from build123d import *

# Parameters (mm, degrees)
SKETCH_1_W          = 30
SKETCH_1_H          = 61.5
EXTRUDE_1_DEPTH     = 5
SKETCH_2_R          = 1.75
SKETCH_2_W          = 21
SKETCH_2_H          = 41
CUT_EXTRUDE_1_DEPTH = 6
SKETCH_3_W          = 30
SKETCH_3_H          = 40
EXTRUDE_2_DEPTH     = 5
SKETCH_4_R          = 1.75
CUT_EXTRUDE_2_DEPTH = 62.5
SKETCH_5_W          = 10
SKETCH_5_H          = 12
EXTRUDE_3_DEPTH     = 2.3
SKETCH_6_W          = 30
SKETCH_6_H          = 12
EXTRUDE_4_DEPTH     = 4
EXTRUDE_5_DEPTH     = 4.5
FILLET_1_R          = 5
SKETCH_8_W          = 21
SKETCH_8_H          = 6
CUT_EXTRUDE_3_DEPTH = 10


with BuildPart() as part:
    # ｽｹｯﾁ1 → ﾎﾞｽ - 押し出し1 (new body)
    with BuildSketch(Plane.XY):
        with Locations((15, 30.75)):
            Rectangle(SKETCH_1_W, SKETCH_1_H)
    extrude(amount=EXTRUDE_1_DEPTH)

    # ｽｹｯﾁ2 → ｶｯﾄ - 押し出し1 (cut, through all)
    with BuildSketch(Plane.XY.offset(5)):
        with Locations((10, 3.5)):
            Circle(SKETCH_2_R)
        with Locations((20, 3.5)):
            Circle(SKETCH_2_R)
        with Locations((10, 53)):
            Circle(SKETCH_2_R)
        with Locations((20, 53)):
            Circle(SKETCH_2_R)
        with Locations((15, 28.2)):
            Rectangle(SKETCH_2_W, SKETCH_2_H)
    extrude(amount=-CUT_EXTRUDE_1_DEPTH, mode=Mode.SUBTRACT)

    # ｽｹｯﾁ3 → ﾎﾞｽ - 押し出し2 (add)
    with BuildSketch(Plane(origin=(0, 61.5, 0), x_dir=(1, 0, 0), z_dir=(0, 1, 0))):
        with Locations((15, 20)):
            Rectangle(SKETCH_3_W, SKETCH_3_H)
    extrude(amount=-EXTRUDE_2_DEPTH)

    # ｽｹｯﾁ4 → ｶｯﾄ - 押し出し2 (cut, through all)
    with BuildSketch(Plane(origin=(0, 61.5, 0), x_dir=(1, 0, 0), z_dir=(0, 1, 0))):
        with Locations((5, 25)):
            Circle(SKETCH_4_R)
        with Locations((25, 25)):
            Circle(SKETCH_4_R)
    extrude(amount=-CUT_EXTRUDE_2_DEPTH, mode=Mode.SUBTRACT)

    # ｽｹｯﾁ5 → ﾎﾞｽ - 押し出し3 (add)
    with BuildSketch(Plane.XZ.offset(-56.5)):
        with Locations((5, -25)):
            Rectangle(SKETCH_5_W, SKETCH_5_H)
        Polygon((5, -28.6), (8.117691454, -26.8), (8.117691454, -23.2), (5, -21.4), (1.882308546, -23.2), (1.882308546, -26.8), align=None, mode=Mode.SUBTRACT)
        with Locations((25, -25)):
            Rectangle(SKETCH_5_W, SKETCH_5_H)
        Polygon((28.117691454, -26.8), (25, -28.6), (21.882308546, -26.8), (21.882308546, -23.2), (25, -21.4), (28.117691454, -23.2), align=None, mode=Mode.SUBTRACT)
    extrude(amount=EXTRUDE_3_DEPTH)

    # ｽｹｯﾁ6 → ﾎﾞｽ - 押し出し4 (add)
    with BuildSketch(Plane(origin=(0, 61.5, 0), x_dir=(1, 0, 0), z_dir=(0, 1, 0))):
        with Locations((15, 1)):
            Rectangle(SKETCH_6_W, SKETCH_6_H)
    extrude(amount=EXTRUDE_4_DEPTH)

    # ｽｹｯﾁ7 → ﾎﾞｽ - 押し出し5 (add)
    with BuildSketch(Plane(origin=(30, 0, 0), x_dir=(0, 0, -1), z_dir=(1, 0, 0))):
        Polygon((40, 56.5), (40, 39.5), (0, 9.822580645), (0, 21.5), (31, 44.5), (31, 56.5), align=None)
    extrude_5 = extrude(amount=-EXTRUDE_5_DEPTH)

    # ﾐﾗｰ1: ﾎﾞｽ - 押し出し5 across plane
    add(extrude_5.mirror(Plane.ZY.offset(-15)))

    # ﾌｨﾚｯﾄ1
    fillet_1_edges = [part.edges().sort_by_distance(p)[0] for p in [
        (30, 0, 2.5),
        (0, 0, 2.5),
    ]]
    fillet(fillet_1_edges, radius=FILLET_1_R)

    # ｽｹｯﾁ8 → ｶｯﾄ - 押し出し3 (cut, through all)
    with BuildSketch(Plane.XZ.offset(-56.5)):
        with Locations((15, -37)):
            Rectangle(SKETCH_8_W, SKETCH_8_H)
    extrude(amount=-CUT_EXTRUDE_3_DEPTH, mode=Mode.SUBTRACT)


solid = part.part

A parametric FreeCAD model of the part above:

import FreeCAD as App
import Part
import Sketcher
Q = App.Units.Quantity


def edges_at(feature, points):
    """Names of the edges that pass closest to the given points."""
    edges = feature.Shape.Edges
    near = lambda p: min(range(len(edges)), key=lambda i: edges[i].distToShape(Part.Vertex(*p))[0])
    return sorted({f"Edge{near(p) + 1}" for p in points})

doc = App.newDocument("Part")
params = doc.addObject("Spreadsheet::Sheet", "Params")
for row, (alias, value) in enumerate([
    ("sketch1_width", "30 mm"),
    ("sketch1_height", "61.5 mm"),
    ("pad1_length", "5 mm"),
    ("sketch2_diameter", "3.5 mm"),
    ("sketch2_width", "21 mm"),
    ("sketch2_height", "41 mm"),
    ("sketch3_width", "30 mm"),
    ("sketch3_height", "40 mm"),
    ("pad2_length", "5 mm"),
    ("sketch4_diameter", "3.5 mm"),
    ("sketch5_width", "10 mm"),
    ("sketch5_height", "12 mm"),
    ("sketch5_height2", "3.6 mm"),
    ("sketch5_length", "3.6 mm"),
    ("pad3_length", "2.3 mm"),
    ("sketch6_width", "30 mm"),
    ("sketch6_height", "12 mm"),
    ("pad4_length", "4 mm"),
    ("sketch7_width", "17 mm"),
    ("sketch7_width2", "12 mm"),
    ("sketch7_height", "9 mm"),
    ("pad5_length", "4.5 mm"),
    ("fillet_radius", "5 mm"),
    ("sketch8_width", "21 mm"),
    ("sketch8_height", "6 mm"),
], start=1):
    params.set(f"A{row}", alias)
    params.set(f"B{row}", "=" + value)
    params.setAlias(f"B{row}", alias)

body = doc.addObject("PartDesign::Body", "Body")

# Sketch on XY plane
sketch1 = doc.addObject("Sketcher::SketchObject", "Sketch")
body.addObject(sketch1)
sketch1.AttachmentSupport = (doc.XY_Plane, [""])
sketch1.MapMode = "FlatFace"
sketch1.addGeometry([
    Part.LineSegment(App.Vector(0, 62, 0), App.Vector(0, 0, 0)),
    Part.LineSegment(App.Vector(0, 0, 0), App.Vector(30, 0, 0)),
    Part.LineSegment(App.Vector(30, 0, 0), App.Vector(30, 62, 0)),
    Part.LineSegment(App.Vector(30, 62, 0), App.Vector(0, 62, 0)),
], False)
sketch1.addConstraint([
    Sketcher.Constraint("Coincident", 0, 2, 1, 1),
    Sketcher.Constraint("Coincident", 1, 2, 2, 1),
    Sketcher.Constraint("Coincident", 2, 2, 3, 1),
    Sketcher.Constraint("Coincident", 3, 2, 0, 1),
    Sketcher.Constraint("Vertical", 0),
    Sketcher.Constraint("Horizontal", 1),
    Sketcher.Constraint("Vertical", 2),
    Sketcher.Constraint("Horizontal", 3),
    Sketcher.Constraint("Coincident", 0, 2, -1, 1),
    Sketcher.Constraint("DistanceX", 1, 1, 1, 2, 30.0),
    Sketcher.Constraint("DistanceY", 0, 2, 0, 1, 61.5),
])
sketch1.setExpression("Constraints[9]", "Params.sketch1_width")
sketch1.setExpression("Constraints[10]", "Params.sketch1_height")
pad1 = doc.addObject("PartDesign::Pad", "Pad")
body.addObject(pad1)
pad1.Profile = sketch1
pad1.setExpression("Length", "Params.pad1_length")

# Sketch on XY plane
sketch2 = doc.addObject("Sketcher::SketchObject", "Sketch001")
body.addObject(sketch2)
sketch2.AttachmentSupport = (doc.XY_Plane, [""])
sketch2.MapMode = "FlatFace"
sketch2.AttachmentOffset = App.Placement(App.Vector(0, 0, 5), App.Rotation())
sketch2.addGeometry([
    Part.Circle(App.Vector(10, 3.5, 0), App.Vector(0, 0, 1), 1.8),  # 0
    Part.Circle(App.Vector(20, 3.5, 0), App.Vector(0, 0, 1), 1.8),  # 1
    Part.Circle(App.Vector(10, 53, 0), App.Vector(0, 0, 1), 1.8),  # 2
    Part.Circle(App.Vector(20, 53, 0), App.Vector(0, 0, 1), 1.8),  # 3
    Part.LineSegment(App.Vector(4.5, 48.7, 0), App.Vector(4.5, 7.7, 0)),  # 4
    Part.LineSegment(App.Vector(4.5, 7.7, 0), App.Vector(25.5, 7.7, 0)),  # 5
    Part.LineSegment(App.Vector(25.5, 7.7, 0), App.Vector(25.5, 48.7, 0)),  # 6
    Part.LineSegment(App.Vector(25.5, 48.7, 0), App.Vector(4.5, 48.7, 0)),  # 7
], False)
sketch2.addConstraint([
    Sketcher.Constraint("Coincident", 4, 2, 5, 1),
    Sketcher.Constraint("Coincident", 5, 2, 6, 1),
    Sketcher.Constraint("Coincident", 6, 2, 7, 1),
    Sketcher.Constraint("Coincident", 7, 2, 4, 1),
    Sketcher.Constraint("Vertical", 4),
    Sketcher.Constraint("Horizontal", 5),
    Sketcher.Constraint("Vertical", 6),
    Sketcher.Constraint("Horizontal", 7),
    Sketcher.Constraint("Equal", 0, 1),
    Sketcher.Constraint("Equal", 1, 2),
    Sketcher.Constraint("Equal", 2, 3),
    Sketcher.Constraint("Horizontal", 0, 3, 1, 3),
    Sketcher.Constraint("Horizontal", 2, 3, 3, 3),
    Sketcher.Constraint("Vertical", 0, 3, 2, 3),
    Sketcher.Constraint("Vertical", 1, 3, 3, 3),
    Sketcher.Constraint("Diameter", 0, 3.5),
    Sketcher.Constraint("DistanceX", 5, 1, 5, 2, 21.0),
    Sketcher.Constraint("DistanceY", 4, 2, 4, 1, 41.0),
    Sketcher.Constraint("DistanceX", -1, 1, 0, 3, 10.0),
    Sketcher.Constraint("DistanceX", -1, 1, 1, 3, 20.0),
    Sketcher.Constraint("DistanceY", -1, 1, 2, 3, 53.0),
    Sketcher.Constraint("DistanceY", -1, 1, 0, 3, 3.5),
    Sketcher.Constraint("DistanceX", -1, 1, 4, 2, 4.5),
    Sketcher.Constraint("DistanceY", -1, 1, 4, 2, 7.7),
])
sketch2.setExpression("Constraints[15]", "Params.sketch2_diameter")
sketch2.setExpression("Constraints[16]", "Params.sketch2_width")
sketch2.setExpression("Constraints[17]", "Params.sketch2_height")
pocket1 = doc.addObject("PartDesign::Pocket", "Pocket")
body.addObject(pocket1)
pocket1.Profile = sketch2
pocket1.Type = "ThroughAll"

# Sketch on XZ plane
sketch3 = doc.addObject("Sketcher::SketchObject", "Sketch002")
body.addObject(sketch3)
sketch3.AttachmentSupport = (doc.XZ_Plane, [""])
sketch3.MapMode = "FlatFace"
sketch3.AttachmentOffset = App.Placement(App.Vector(0, 0, -61.5), App.Rotation())
sketch3.addGeometry([
    Part.LineSegment(App.Vector(0, -40, 0), App.Vector(0, 0, 0)),
    Part.LineSegment(App.Vector(0, 0, 0), App.Vector(30, 0, 0)),
    Part.LineSegment(App.Vector(30, 0, 0), App.Vector(30, -40, 0)),
    Part.LineSegment(App.Vector(30, -40, 0), App.Vector(0, -40, 0)),
], False)
sketch3.addConstraint([
    Sketcher.Constraint("Coincident", 0, 2, 1, 1),
    Sketcher.Constraint("Coincident", 1, 2, 2, 1),
    Sketcher.Constraint("Coincident", 2, 2, 3, 1),
    Sketcher.Constraint("Coincident", 3, 2, 0, 1),
    Sketcher.Constraint("Vertical", 0),
    Sketcher.Constraint("Horizontal", 1),
    Sketcher.Constraint("Vertical", 2),
    Sketcher.Constraint("Horizontal", 3),
    Sketcher.Constraint("Coincident", 0, 2, -1, 1),
    Sketcher.Constraint("DistanceX", 1, 1, 1, 2, 30.0),
    Sketcher.Constraint("DistanceY", 0, 1, 0, 2, 40.0),
])
sketch3.setExpression("Constraints[9]", "Params.sketch3_width")
sketch3.setExpression("Constraints[10]", "Params.sketch3_height")
pad2 = doc.addObject("PartDesign::Pad", "Pad001")
body.addObject(pad2)
pad2.Profile = sketch3
pad2.setExpression("Length", "Params.pad2_length")

# Sketch on XZ plane
sketch4 = doc.addObject("Sketcher::SketchObject", "Sketch003")
body.addObject(sketch4)
sketch4.AttachmentSupport = (doc.XZ_Plane, [""])
sketch4.MapMode = "FlatFace"
sketch4.AttachmentOffset = App.Placement(App.Vector(0, 0, -61.5), App.Rotation())
sketch4.addGeometry([
    Part.Circle(App.Vector(5, -25, 0), App.Vector(0, 0, 1), 1.8),
    Part.Circle(App.Vector(25, -25, 0), App.Vector(0, 0, 1), 1.8),
], False)
sketch4.addConstraint([
    Sketcher.Constraint("Equal", 0, 1),
    Sketcher.Constraint("Horizontal", 0, 3, 1, 3),
    Sketcher.Constraint("Diameter", 0, 3.5),
    Sketcher.Constraint("DistanceX", -1, 1, 0, 3, 5.0),
    Sketcher.Constraint("DistanceY", 0, 3, -1, 1, 25.0),
    Sketcher.Constraint("DistanceX", -1, 1, 1, 3, 25.0),
])
sketch4.setExpression("Constraints[2]", "Params.sketch4_diameter")
pocket2 = doc.addObject("PartDesign::Pocket", "Pocket001")
body.addObject(pocket2)
pocket2.Profile = sketch4
pocket2.Type = "ThroughAll"
pocket2.Reversed = True

# Sketch on XZ plane
sketch5 = doc.addObject("Sketcher::SketchObject", "Sketch004")
body.addObject(sketch5)
sketch5.AttachmentSupport = (doc.XZ_Plane, [""])
sketch5.MapMode = "FlatFace"
sketch5.AttachmentOffset = App.Placement(App.Vector(0, 0, -56.5), App.Rotation())
sketch5.addGeometry([
    Part.LineSegment(App.Vector(0, -19, 0), App.Vector(0, -31, 0)),  # 0
    Part.LineSegment(App.Vector(0, -31, 0), App.Vector(10, -31, 0)),  # 1
    Part.LineSegment(App.Vector(10, -31, 0), App.Vector(10, -19, 0)),  # 2
    Part.LineSegment(App.Vector(10, -19, 0), App.Vector(0, -19, 0)),  # 3
    Part.LineSegment(App.Vector(8.1, -26.8, 0), App.Vector(5, -28.6, 0)),  # 4
    Part.LineSegment(App.Vector(5, -28.6, 0), App.Vector(1.9, -26.8, 0)),  # 5
    Part.LineSegment(App.Vector(1.9, -26.8, 0), App.Vector(1.9, -23.2, 0)),  # 6
    Part.LineSegment(App.Vector(1.9, -23.2, 0), App.Vector(5, -21.4, 0)),  # 7
    Part.LineSegment(App.Vector(5, -21.4, 0), App.Vector(8.1, -23.2, 0)),  # 8
    Part.LineSegment(App.Vector(8.1, -23.2, 0), App.Vector(8.1, -26.8, 0)),  # 9
    Part.LineSegment(App.Vector(20, -19, 0), App.Vector(20, -31, 0)),  # 10
    Part.LineSegment(App.Vector(20, -31, 0), App.Vector(30, -31, 0)),  # 11
    Part.LineSegment(App.Vector(30, -31, 0), App.Vector(30, -19, 0)),  # 12
    Part.LineSegment(App.Vector(30, -19, 0), App.Vector(20, -19, 0)),  # 13
    Part.LineSegment(App.Vector(28.1, -23.2, 0), App.Vector(28.1, -26.8, 0)),  # 14
    Part.LineSegment(App.Vector(28.1, -26.8, 0), App.Vector(25, -28.6, 0)),  # 15
    Part.LineSegment(App.Vector(25, -28.6, 0), App.Vector(21.9, -26.8, 0)),  # 16
    Part.LineSegment(App.Vector(21.9, -26.8, 0), App.Vector(21.9, -23.2, 0)),  # 17
    Part.LineSegment(App.Vector(21.9, -23.2, 0), App.Vector(25, -21.4, 0)),  # 18
    Part.LineSegment(App.Vector(25, -21.4, 0), App.Vector(28.1, -23.2, 0)),  # 19
], False)
sketch5.addConstraint([
    Sketcher.Constraint("Coincident", 0, 2, 1, 1),
    Sketcher.Constraint("Coincident", 1, 2, 2, 1),
    Sketcher.Constraint("Coincident", 2, 2, 3, 1),
    Sketcher.Constraint("Coincident", 3, 2, 0, 1),
    Sketcher.Constraint("Coincident", 4, 2, 5, 1),
    Sketcher.Constraint("Coincident", 5, 2, 6, 1),
    Sketcher.Constraint("Coincident", 6, 2, 7, 1),
    Sketcher.Constraint("Coincident", 7, 2, 8, 1),
    Sketcher.Constraint("Coincident", 8, 2, 9, 1),
    Sketcher.Constraint("Coincident", 9, 2, 4, 1),
    Sketcher.Constraint("Coincident", 10, 2, 11, 1),
    Sketcher.Constraint("Coincident", 11, 2, 12, 1),
    Sketcher.Constraint("Coincident", 12, 2, 13, 1),
    Sketcher.Constraint("Coincident", 13, 2, 10, 1),
    Sketcher.Constraint("Coincident", 14, 2, 15, 1),
    Sketcher.Constraint("Coincident", 15, 2, 16, 1),
    Sketcher.Constraint("Coincident", 16, 2, 17, 1),
    Sketcher.Constraint("Coincident", 17, 2, 18, 1),
    Sketcher.Constraint("Coincident", 18, 2, 19, 1),
    Sketcher.Constraint("Coincident", 19, 2, 14, 1),
    Sketcher.Constraint("Vertical", 0),
    Sketcher.Constraint("Horizontal", 1),
    Sketcher.Constraint("Vertical", 2),
    Sketcher.Constraint("Horizontal", 3),
    Sketcher.Constraint("Vertical", 6),
    Sketcher.Constraint("Vertical", 9),
    Sketcher.Constraint("Vertical", 10),
    Sketcher.Constraint("Horizontal", 11),
    Sketcher.Constraint("Vertical", 12),
    Sketcher.Constraint("Horizontal", 13),
    Sketcher.Constraint("Vertical", 14),
    Sketcher.Constraint("Vertical", 17),
    Sketcher.Constraint("PointOnObject", 0, 2, -2),
    Sketcher.Constraint("Parallel", 4, 7),
    Sketcher.Constraint("Parallel", 5, 8),
    Sketcher.Constraint("Parallel", 7, 15),
    Sketcher.Constraint("Parallel", 8, 16),
    Sketcher.Constraint("Parallel", 15, 18),
    Sketcher.Constraint("Parallel", 16, 19),
    Sketcher.Constraint("Horizontal", 6, 2, 8, 2),
    Sketcher.Constraint("Horizontal", 5, 2, 9, 2),
    Sketcher.Constraint("Horizontal", 1, 2, 10, 2),
    Sketcher.Constraint("Horizontal", 3, 2, 12, 2),
    Sketcher.Constraint("Horizontal", 9, 2, 14, 2),
    Sketcher.Constraint("Horizontal", 4, 2, 15, 2),
    Sketcher.Constraint("Horizontal", 14, 2, 16, 2),
    Sketcher.Constraint("Horizontal", 8, 2, 17, 2),
    Sketcher.Constraint("Horizontal", 7, 2, 18, 2),
    Sketcher.Constraint("Vertical", 4, 2, 7, 2),
    Sketcher.Constraint("Equal", 3, 11),
    Sketcher.Constraint("DistanceX", 1, 1, 1, 2, 10.0),
    Sketcher.Constraint("DistanceY", 0, 2, 0, 1, 12.0),
    Sketcher.Constraint("Angle", 4, Q("-150 deg")),
    Sketcher.Constraint("DistanceY", 6, 1, 6, 2, 3.6),
    Sketcher.Constraint("DistanceY", 0, 2, -1, 1, 31.0),
    Sketcher.Constraint("DistanceX", -1, 1, 4, 2, 5.0),
    Sketcher.Constraint("DistanceX", -1, 1, 10, 2, 20.0),
    Sketcher.Constraint("DistanceX", -1, 1, 15, 2, 25.0),
    Sketcher.Constraint("Distance", 4, 3.6),
    Sketcher.Constraint("DistanceY", 4, 2, -1, 1, 28.6),
])
sketch5.setExpression("Constraints[50]", "Params.sketch5_width")
sketch5.setExpression("Constraints[51]", "Params.sketch5_height")
sketch5.setExpression("Constraints[53]", "Params.sketch5_height2")
sketch5.setExpression("Constraints[58]", "Params.sketch5_length")
pad3 = doc.addObject("PartDesign::Pad", "Pad002")
body.addObject(pad3)
pad3.Profile = sketch5
pad3.setExpression("Length", "Params.pad3_length")

# Sketch on XZ plane
sketch6 = doc.addObject("Sketcher::SketchObject", "Sketch005")
body.addObject(sketch6)
sketch6.AttachmentSupport = (doc.XZ_Plane, [""])
sketch6.MapMode = "FlatFace"
sketch6.AttachmentOffset = App.Placement(App.Vector(0, 0, -61.5), App.Rotation())
sketch6.addGeometry([
    Part.LineSegment(App.Vector(0, -7, 0), App.Vector(0, 5, 0)),
    Part.LineSegment(App.Vector(0, 5, 0), App.Vector(30, 5, 0)),
    Part.LineSegment(App.Vector(30, 5, 0), App.Vector(30, -7, 0)),
    Part.LineSegment(App.Vector(30, -7, 0), App.Vector(0, -7, 0)),
], False)
sketch6.addConstraint([
    Sketcher.Constraint("Coincident", 0, 2, 1, 1),
    Sketcher.Constraint("Coincident", 1, 2, 2, 1),
    Sketcher.Constraint("Coincident", 2, 2, 3, 1),
    Sketcher.Constraint("Coincident", 3, 2, 0, 1),
    Sketcher.Constraint("Vertical", 0),
    Sketcher.Constraint("Horizontal", 1),
    Sketcher.Constraint("Vertical", 2),
    Sketcher.Constraint("Horizontal", 3),
    Sketcher.Constraint("PointOnObject", 0, 2, -2),
    Sketcher.Constraint("DistanceX", 1, 1, 1, 2, 30.0),
    Sketcher.Constraint("DistanceY", 0, 1, 0, 2, 12.0),
    Sketcher.Constraint("DistanceY", -1, 1, 0, 2, 5.0),
])
sketch6.setExpression("Constraints[9]", "Params.sketch6_width")
sketch6.setExpression("Constraints[10]", "Params.sketch6_height")
pad4 = doc.addObject("PartDesign::Pad", "Pad003")
body.addObject(pad4)
pad4.Profile = sketch6
pad4.setExpression("Length", "Params.pad4_length")
pad4.Reversed = True

# Sketch on YZ plane
sketch7 = doc.addObject("Sketcher::SketchObject", "Sketch006")
body.addObject(sketch7)
sketch7.AttachmentSupport = (doc.YZ_Plane, [""])
sketch7.MapMode = "FlatFace"
sketch7.AttachmentOffset = App.Placement(App.Vector(0, 0, 30), App.Rotation())
sketch7.addGeometry([
    Part.LineSegment(App.Vector(40, -40, 0), App.Vector(56, -40, 0)),  # 0
    Part.LineSegment(App.Vector(56, -40, 0), App.Vector(56, -31, 0)),  # 1
    Part.LineSegment(App.Vector(56, -31, 0), App.Vector(44, -31, 0)),  # 2
    Part.LineSegment(App.Vector(44, -31, 0), App.Vector(22, 0, 0)),  # 3
    Part.LineSegment(App.Vector(22, 0, 0), App.Vector(10, 0, 0)),  # 4
    Part.LineSegment(App.Vector(10, 0, 0), App.Vector(40, -40, 0)),  # 5
], False)
sketch7.addConstraint([
    Sketcher.Constraint("Coincident", 0, 2, 1, 1),
    Sketcher.Constraint("Coincident", 1, 2, 2, 1),
    Sketcher.Constraint("Coincident", 2, 2, 3, 1),
    Sketcher.Constraint("Coincident", 3, 2, 4, 1),
    Sketcher.Constraint("Coincident", 4, 2, 5, 1),
    Sketcher.Constraint("Coincident", 5, 2, 0, 1),
    Sketcher.Constraint("Horizontal", 0),
    Sketcher.Constraint("Vertical", 1),
    Sketcher.Constraint("Horizontal", 2),
    Sketcher.Constraint("Horizontal", 4),
    Sketcher.Constraint("PointOnObject", 3, 2, -1),
    Sketcher.Constraint("Parallel", 3, 5),
    Sketcher.Constraint("DistanceX", 0, 1, 0, 2, 17.0),
    Sketcher.Constraint("DistanceX", 2, 2, 2, 1, 12.0),
    Sketcher.Constraint("DistanceY", 1, 1, 1, 2, 9.0),
    Sketcher.Constraint("DistanceY", 0, 2, -1, 1, 40.0),
    Sketcher.Constraint("DistanceX", 3, 2, 2, 2, 23.0),
    Sketcher.Constraint("DistanceX", -1, 1, 0, 2, 56.5),
])
sketch7.setExpression("Constraints[12]", "Params.sketch7_width")
sketch7.setExpression("Constraints[13]", "Params.sketch7_width2")
sketch7.setExpression("Constraints[14]", "Params.sketch7_height")
pad5 = doc.addObject("PartDesign::Pad", "Pad004")
body.addObject(pad5)
pad5.Profile = sketch7
pad5.setExpression("Length", "Params.pad5_length")
pad5.Reversed = True
doc.recompute()

datumplane = doc.addObject("PartDesign::Plane", "DatumPlane")
body.addObject(datumplane)
datumplane.AttachmentSupport = (doc.YZ_Plane, [""])
datumplane.MapMode = "FlatFace"
datumplane.AttachmentOffset = App.Placement(App.Vector(0, 0, 15), App.Rotation())
mirrored = doc.addObject("PartDesign::Mirrored", "Mirrored")
body.addObject(mirrored)
mirrored.Originals = [pad5]
mirrored.MirrorPlane = (datumplane, [""])
body.Tip = mirrored
doc.recompute()

fillet = doc.addObject("PartDesign::Fillet", "Fillet")
body.addObject(fillet)
fillet.Base = (mirrored, edges_at(mirrored, [(30, 0, 2.5), (0, 0, 2.5)]))
fillet.setExpression("Radius", "Params.fillet_radius")

# Sketch on XZ plane
sketch8 = doc.addObject("Sketcher::SketchObject", "Sketch007")
body.addObject(sketch8)
sketch8.AttachmentSupport = (doc.XZ_Plane, [""])
sketch8.MapMode = "FlatFace"
sketch8.AttachmentOffset = App.Placement(App.Vector(0, 0, -56.5), App.Rotation())
sketch8.addGeometry([
    Part.LineSegment(App.Vector(4, -34, 0), App.Vector(4, -40, 0)),
    Part.LineSegment(App.Vector(4, -40, 0), App.Vector(26, -40, 0)),
    Part.LineSegment(App.Vector(26, -40, 0), App.Vector(26, -34, 0)),
    Part.LineSegment(App.Vector(26, -34, 0), App.Vector(4, -34, 0)),
], False)
sketch8.addConstraint([
    Sketcher.Constraint("Coincident", 0, 2, 1, 1),
    Sketcher.Constraint("Coincident", 1, 2, 2, 1),
    Sketcher.Constraint("Coincident", 2, 2, 3, 1),
    Sketcher.Constraint("Coincident", 3, 2, 0, 1),
    Sketcher.Constraint("Vertical", 0),
    Sketcher.Constraint("Horizontal", 1),
    Sketcher.Constraint("Vertical", 2),
    Sketcher.Constraint("Horizontal", 3),
    Sketcher.Constraint("DistanceX", 1, 1, 1, 2, 21.0),
    Sketcher.Constraint("DistanceY", 0, 2, 0, 1, 6.0),
    Sketcher.Constraint("DistanceY", 0, 2, -1, 1, 40.0),
    Sketcher.Constraint("DistanceX", -1, 1, 0, 2, 4.5),
])
sketch8.setExpression("Constraints[8]", "Params.sketch8_width")
sketch8.setExpression("Constraints[9]", "Params.sketch8_height")
pocket3 = doc.addObject("PartDesign::Pocket", "Pocket002")
body.addObject(pocket3)
pocket3.Profile = sketch8
pocket3.Type = "ThroughAll"

doc.recompute()
